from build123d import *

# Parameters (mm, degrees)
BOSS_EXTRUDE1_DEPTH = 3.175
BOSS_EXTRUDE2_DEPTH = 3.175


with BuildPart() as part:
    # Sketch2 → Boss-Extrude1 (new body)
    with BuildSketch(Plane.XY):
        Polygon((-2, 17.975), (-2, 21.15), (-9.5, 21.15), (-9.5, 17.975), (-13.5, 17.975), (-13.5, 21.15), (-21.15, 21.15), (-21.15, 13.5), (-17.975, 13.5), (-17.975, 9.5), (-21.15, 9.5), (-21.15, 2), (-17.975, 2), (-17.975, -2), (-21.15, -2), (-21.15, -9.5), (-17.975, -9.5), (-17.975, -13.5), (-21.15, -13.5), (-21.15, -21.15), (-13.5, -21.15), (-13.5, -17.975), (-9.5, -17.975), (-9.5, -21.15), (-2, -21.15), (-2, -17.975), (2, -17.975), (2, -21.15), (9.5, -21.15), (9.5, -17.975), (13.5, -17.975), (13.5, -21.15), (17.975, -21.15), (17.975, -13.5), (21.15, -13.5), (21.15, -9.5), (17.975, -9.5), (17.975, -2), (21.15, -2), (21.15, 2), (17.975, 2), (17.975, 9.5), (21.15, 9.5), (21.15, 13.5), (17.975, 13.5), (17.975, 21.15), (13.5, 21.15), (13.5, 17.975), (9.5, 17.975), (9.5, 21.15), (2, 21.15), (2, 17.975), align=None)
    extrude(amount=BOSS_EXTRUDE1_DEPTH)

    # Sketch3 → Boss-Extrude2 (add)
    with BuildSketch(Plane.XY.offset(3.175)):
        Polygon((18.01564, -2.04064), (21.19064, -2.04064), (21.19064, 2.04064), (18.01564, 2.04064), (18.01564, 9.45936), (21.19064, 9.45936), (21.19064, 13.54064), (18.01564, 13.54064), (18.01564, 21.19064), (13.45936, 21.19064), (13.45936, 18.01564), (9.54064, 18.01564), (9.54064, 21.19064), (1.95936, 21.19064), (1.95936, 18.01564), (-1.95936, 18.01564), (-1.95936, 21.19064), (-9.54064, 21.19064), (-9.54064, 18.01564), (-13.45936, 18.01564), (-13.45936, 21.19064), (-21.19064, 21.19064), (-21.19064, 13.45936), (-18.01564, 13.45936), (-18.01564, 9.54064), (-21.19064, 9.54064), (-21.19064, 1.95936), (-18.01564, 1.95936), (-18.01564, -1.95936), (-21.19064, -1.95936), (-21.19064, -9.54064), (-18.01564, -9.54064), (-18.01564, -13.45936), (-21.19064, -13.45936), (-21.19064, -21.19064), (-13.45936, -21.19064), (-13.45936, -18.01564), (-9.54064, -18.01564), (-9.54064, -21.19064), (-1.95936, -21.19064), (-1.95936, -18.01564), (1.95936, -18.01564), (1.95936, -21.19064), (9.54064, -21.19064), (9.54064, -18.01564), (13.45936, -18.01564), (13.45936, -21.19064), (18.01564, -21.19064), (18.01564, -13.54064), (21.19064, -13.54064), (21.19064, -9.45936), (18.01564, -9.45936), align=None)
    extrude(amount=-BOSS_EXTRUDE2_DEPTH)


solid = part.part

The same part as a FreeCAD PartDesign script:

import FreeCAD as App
import Part
import Sketcher
from FreeCAD import Vector
Q = App.Units.Quantity

doc = App.newDocument("Part")
body = doc.addObject("PartDesign::Body", "Body")

sketch1 = body.newObject("Sketcher::SketchObject", "Sketch")
sketch1.AttachmentSupport = (doc.getObject("XY_Plane"), [""])
sketch1.MapMode = "FlatFace"
sketch1.addGeometry([
    Part.LineSegment(Vector(-2, 18, 0), Vector(-2, 21.1, 0)),
    Part.LineSegment(Vector(-2, 21.1, 0), Vector(-9.5, 21.1, 0)),
    Part.LineSegment(Vector(-9.5, 21.1, 0), Vector(-9.5, 18, 0)),
    Part.LineSegment(Vector(-9.5, 18, 0), Vector(-13.5, 18, 0)),
    Part.LineSegment(Vector(-13.5, 18, 0), Vector(-13.5, 21.1, 0)),
    Part.LineSegment(Vector(-13.5, 21.1, 0), Vector(-21.1, 21.1, 0)),
    Part.LineSegment(Vector(-21.1, 21.1, 0), Vector(-21.1, 13.5, 0)),
    Part.LineSegment(Vector(-21.1, 13.5, 0), Vector(-18, 13.5, 0)),
    Part.LineSegment(Vector(-18, 13.5, 0), Vector(-18, 9.5, 0)),
    Part.LineSegment(Vector(-18, 9.5, 0), Vector(-21.1, 9.5, 0)),
    Part.LineSegment(Vector(-21.1, 9.5, 0), Vector(-21.1, 2, 0)),
    Part.LineSegment(Vector(-21.1, 2, 0), Vector(-18, 2, 0)),
    Part.LineSegment(Vector(-18, 2, 0), Vector(-18, -2, 0)),
    Part.LineSegment(Vector(-18, -2, 0), Vector(-21.1, -2, 0)),
    Part.LineSegment(Vector(-21.1, -2, 0), Vector(-21.1, -9.5, 0)),
    Part.LineSegment(Vector(-21.1, -9.5, 0), Vector(-18, -9.5, 0)),
    Part.LineSegment(Vector(-18, -9.5, 0), Vector(-18, -13.5, 0)),
    Part.LineSegment(Vector(-18, -13.5, 0), Vector(-21.1, -13.5, 0)),
    Part.LineSegment(Vector(-21.1, -13.5, 0), Vector(-21.1, -21.1, 0)),
    Part.LineSegment(Vector(-21.1, -21.1, 0), Vector(-13.5, -21.1, 0)),
    Part.LineSegment(Vector(-13.5, -21.1, 0), Vector(-13.5, -18, 0)),
    Part.LineSegment(Vector(-13.5, -18, 0), Vector(-9.5, -18, 0)),
    Part.LineSegment(Vector(-9.5, -18, 0), Vector(-9.5, -21.1, 0)),
    Part.LineSegment(Vector(-9.5, -21.1, 0), Vector(-2, -21.1, 0)),
    Part.LineSegment(Vector(-2, -21.1, 0), Vector(-2, -18, 0)),
    Part.LineSegment(Vector(-2, -18, 0), Vector(2, -18, 0)),
    Part.LineSegment(Vector(2, -18, 0), Vector(2, -21.1, 0)),
    Part.LineSegment(Vector(2, -21.1, 0), Vector(9.5, -21.1, 0)),
    Part.LineSegment(Vector(9.5, -21.1, 0), Vector(9.5, -18, 0)),
    Part.LineSegment(Vector(9.5, -18, 0), Vector(13.5, -18, 0)),
    Part.LineSegment(Vector(13.5, -18, 0), Vector(13.5, -21.1, 0)),
    Part.LineSegment(Vector(13.5, -21.1, 0), Vector(18, -21.1, 0)),
    Part.LineSegment(Vector(18, -21.1, 0), Vector(18, -13.5, 0)),
    Part.LineSegment(Vector(18, -13.5, 0), Vector(21.1, -13.5, 0)),
    Part.LineSegment(Vector(21.1, -13.5, 0), Vector(21.1, -9.5, 0)),
    Part.LineSegment(Vector(21.1, -9.5, 0), Vector(18, -9.5, 0)),
    Part.LineSegment(Vector(18, -9.5, 0), Vector(18, -2, 0)),
    Part.LineSegment(Vector(18, -2, 0), Vector(21.1, -2, 0)),
    Part.LineSegment(Vector(21.1, -2, 0), Vector(21.1, 2, 0)),
    Part.LineSegment(Vector(21.1, 2, 0), Vector(18, 2, 0)),
    Part.LineSegment(Vector(18, 2, 0), Vector(18, 9.5, 0)),
    Part.LineSegment(Vector(18, 9.5, 0), Vector(21.1, 9.5, 0)),
    Part.LineSegment(Vector(21.1, 9.5, 0), Vector(21.1, 13.5, 0)),
    Part.LineSegment(Vector(21.1, 13.5, 0), Vector(18, 13.5, 0)),
    Part.LineSegment(Vector(18, 13.5, 0), Vector(18, 21.1, 0)),
    Part.LineSegment(Vector(18, 21.1, 0), Vector(13.5, 21.1, 0)),
    Part.LineSegment(Vector(13.5, 21.1, 0), Vector(13.5, 18, 0)),
    Part.LineSegment(Vector(13.5, 18, 0), Vector(9.5, 18, 0)),
    Part.LineSegment(Vector(9.5, 18, 0), Vector(9.5, 21.1, 0)),
    Part.LineSegment(Vector(9.5, 21.1, 0), Vector(2, 21.1, 0)),
    Part.LineSegment(Vector(2, 21.1, 0), Vector(2, 18, 0)),
    Part.LineSegment(Vector(2, 18, 0), Vector(-2, 18, 0)),
], False)
sketch1.addConstraint([
    Sketcher.Constraint("Coincident", 0, 2, 1, 1),
    Sketcher.Constraint("Coincident", 1, 2, 2, 1),
    Sketcher.Constraint("Coincident", 2, 2, 3, 1),
    Sketcher.Constraint("Coincident", 3, 2, 4, 1),
    Sketcher.Constraint("Coincident", 4, 2, 5, 1),
    Sketcher.Constraint("Coincident", 5, 2, 6, 1),
    Sketcher.Constraint("Coincident", 6, 2, 7, 1),
    Sketcher.Constraint("Coincident", 7, 2, 8, 1),
    Sketcher.Constraint("Coincident", 8, 2, 9, 1),
    Sketcher.Constraint("Coincident", 9, 2, 10, 1),
    Sketcher.Constraint("Coincident", 10, 2, 11, 1),
    Sketcher.Constraint("Coincident", 11, 2, 12, 1),
    Sketcher.Constraint("Coincident", 12, 2, 13, 1),
    Sketcher.Constraint("Coincident", 13, 2, 14, 1),
    Sketcher.Constraint("Coincident", 14, 2, 15, 1),
    Sketcher.Constraint("Coincident", 15, 2, 16, 1),
    Sketcher.Constraint("Coincident", 16, 2, 17, 1),
    Sketcher.Constraint("Coincident", 17, 2, 18, 1),
    Sketcher.Constraint("Coincident", 18, 2, 19, 1),
    Sketcher.Constraint("Coincident", 19, 2, 20, 1),
    Sketcher.Constraint("Coincident", 20, 2, 21, 1),
    Sketcher.Constraint("Coincident", 21, 2, 22, 1),
    Sketcher.Constraint("Coincident", 22, 2, 23, 1),
    Sketcher.Constraint("Coincident", 23, 2, 24, 1),
    Sketcher.Constraint("Coincident", 24, 2, 25, 1),
    Sketcher.Constraint("Coincident", 25, 2, 26, 1),
    Sketcher.Constraint("Coincident", 26, 2, 27, 1),
    Sketcher.Constraint("Coincident", 27, 2, 28, 1),
    Sketcher.Constraint("Coincident", 28, 2, 29, 1),
    Sketcher.Constraint("Coincident", 29, 2, 30, 1),
    Sketcher.Constraint("Coincident", 30, 2, 31, 1),
    Sketcher.Constraint("Coincident", 31, 2, 32, 1),
    Sketcher.Constraint("Coincident", 32, 2, 33, 1),
    Sketcher.Constraint("Coincident", 33, 2, 34, 1),
    Sketcher.Constraint("Coincident", 34, 2, 35, 1),
    Sketcher.Constraint("Coincident", 35, 2, 36, 1),
    Sketcher.Constraint("Coincident", 36, 2, 37, 1),
    Sketcher.Constraint("Coincident", 37, 2, 38, 1),
    Sketcher.Constraint("Coincident", 38, 2, 39, 1),
    Sketcher.Constraint("Coincident", 39, 2, 40, 1),
    Sketcher.Constraint("Coincident", 40, 2, 41, 1),
    Sketcher.Constraint("Coincident", 41, 2, 42, 1),
    Sketcher.Constraint("Coincident", 42, 2, 43, 1),
    Sketcher.Constraint("Coincident", 43, 2, 44, 1),
    Sketcher.Constraint("Coincident", 44, 2, 45, 1),
    Sketcher.Constraint("Coincident", 45, 2, 46, 1),
    Sketcher.Constraint("Coincident", 46, 2, 47, 1),
    Sketcher.Constraint("Coincident", 47, 2, 48, 1),
    Sketcher.Constraint("Coincident", 48, 2, 49, 1),
    Sketcher.Constraint("Coincident", 49, 2, 50, 1),
    Sketcher.Constraint("Coincident", 50, 2, 51, 1),
    Sketcher.Constraint("Coincident", 51, 2, 0, 1),
    Sketcher.Constraint("Vertical", 0),
    Sketcher.Constraint("Horizontal", 1),
    Sketcher.Constraint("Vertical", 2),
    Sketcher.Constraint("Horizontal", 3),
    Sketcher.Constraint("Vertical", 4),
    Sketcher.Constraint("Horizontal", 5),
    Sketcher.Constraint("Vertical", 6),
    Sketcher.Constraint("Horizontal", 7),
    Sketcher.Constraint("Vertical", 8),
    Sketcher.Constraint("Horizontal", 9),
    Sketcher.Constraint("Vertical", 10),
    Sketcher.Constraint("Horizontal", 11),
    Sketcher.Constraint("Vertical", 12),
    Sketcher.Constraint("Horizontal", 13),
    Sketcher.Constraint("Vertical", 14),
    Sketcher.Constraint("Horizontal", 15),
    Sketcher.Constraint("Vertical", 16),
    Sketcher.Constraint("Horizontal", 17),
    Sketcher.Constraint("Vertical", 18),
    Sketcher.Constraint("Horizontal", 19),
    Sketcher.Constraint("Vertical", 20),
    Sketcher.Constraint("Horizontal", 21),
    Sketcher.Constraint("Vertical", 22),
    Sketcher.Constraint("Horizontal", 23),
    Sketcher.Constraint("Vertical", 24),
    Sketcher.Constraint("Horizontal", 25),
    Sketcher.Constraint("Vertical", 26),
    Sketcher.Constraint("Horizontal", 27),
    Sketcher.Constraint("Vertical", 28),
    Sketcher.Constraint("Horizontal", 29),
    Sketcher.Constraint("Vertical", 30),
    Sketcher.Constraint("Horizontal", 31),
    Sketcher.Constraint("Vertical", 32),
    Sketcher.Constraint("Horizontal", 33),
    Sketcher.Constraint("Vertical", 34),
    Sketcher.Constraint("Horizontal", 35),
    Sketcher.Constraint("Vertical", 36),
    Sketcher.Constraint("Horizontal", 37),
    Sketcher.Constraint("Vertical", 38),
    Sketcher.Constraint("Horizontal", 39),
    Sketcher.Constraint("Vertical", 40),
    Sketcher.Constraint("Horizontal", 41),
    Sketcher.Constraint("Vertical", 42),
    Sketcher.Constraint("Horizontal", 43),
    Sketcher.Constraint("Vertical", 44),
    Sketcher.Constraint("Horizontal", 45),
    Sketcher.Constraint("Vertical", 46),
    Sketcher.Constraint("Horizontal", 47),
    Sketcher.Constraint("Vertical", 48),
    Sketcher.Constraint("Horizontal", 49),
    Sketcher.Constraint("Vertical", 50),
    Sketcher.Constraint("Horizontal", 51),
    Sketcher.Constraint("Symmetric", 0, 2, 26, 2, -1, 1),
    Sketcher.Constraint("Symmetric", 2, 2, 28, 2, -1, 1),
    Sketcher.Constraint("Symmetric", 4, 2, 30, 2, -1, 1),
    Sketcher.Constraint("Symmetric", 7, 2, 32, 2, -1, 1),
    Sketcher.Constraint("Symmetric", 9, 2, 34, 2, -1, 1),
    Sketcher.Constraint("Symmetric", 11, 2, 36, 2, -1, 1),
    Sketcher.Constraint("Symmetric", 13, 2, 38, 2, -1, 1),
    Sketcher.Constraint("Symmetric", 15, 2, 40, 2, -1, 1),
    Sketcher.Constraint("Symmetric", 17, 2, 42, 2, -1, 1),
    Sketcher.Constraint("Symmetric", 19, 2, 45, 2, -1, 1),
    Sketcher.Constraint("Symmetric", 21, 2, 47, 2, -1, 1),
    Sketcher.Constraint("Symmetric", 23, 2, 49, 2, -1, 1),
    Sketcher.Constraint("Symmetric", 23, 2, 26, 2, -2),
    Sketcher.Constraint("Symmetric", 21, 2, 28, 2, -2),
    Sketcher.Constraint("Symmetric", 19, 2, 30, 2, -2),
    Sketcher.Constraint("Symmetric", 16, 2, 32, 2, -2),
    Sketcher.Constraint("Symmetric", 14, 2, 34, 2, -2),
    Sketcher.Constraint("Symmetric", 11, 2, 39, 2, -2),
    Sketcher.Constraint("Horizontal", 1, 2, 4, 2),
    Sketcher.Constraint("Horizontal", 21, 2, 24, 2),
    Sketcher.Constraint("Horizontal", 47, 2, 50, 2),
    Sketcher.Constraint("Vertical", 6, 2, 9, 2),
    Sketcher.Constraint("Vertical", 14, 2, 17, 2),
    Sketcher.Constraint("Vertical", 40, 2, 43, 2),
    Sketcher.Constraint("Equal", 21, 25),
    Sketcher.Constraint("Equal", 43, 0),
    Sketcher.Constraint("Equal", 19, 6),
    Sketcher.Constraint("Equal", 51, 8),
    Sketcher.Constraint("Equal", 49, 10),
    Sketcher.Constraint("Equal", 8, 12),
    Sketcher.Constraint("DistanceX", 3, 2, 3, 1, Q("4 mm")),
    Sketcher.Constraint("DistanceX", 1, 2, 1, 1, Q("7.5 mm")),
    Sketcher.Constraint("DistanceX", 5, 2, 5, 1, Q("7.65 mm")),
    Sketcher.Constraint("DistanceX", 7, 1, 7, 2, Q("3.175 mm")),
])
pad1 = body.newObject("PartDesign::Pad", "Pad")
pad1.Profile = sketch1
pad1.Length = 3.175

sketch2 = body.newObject("Sketcher::SketchObject", "Sketch001")
sketch2.AttachmentSupport = (doc.getObject("XY_Plane"), [""])
sketch2.MapMode = "FlatFace"
sketch2.AttachmentOffset = App.Placement(Vector(0, 0, 3.175), App.Rotation())
sketch2.addGeometry([
    Part.LineSegment(Vector(18, -2, 0), Vector(21.2, -2, 0)),
    Part.LineSegment(Vector(21.2, -2, 0), Vector(21.2, 2, 0)),
    Part.LineSegment(Vector(21.2, 2, 0), Vector(18, 2, 0)),
    Part.LineSegment(Vector(18, 2, 0), Vector(18, 9.5, 0)),
    Part.LineSegment(Vector(18, 9.5, 0), Vector(21.2, 9.5, 0)),
    Part.LineSegment(Vector(21.2, 9.5, 0), Vector(21.2, 13.5, 0)),
    Part.LineSegment(Vector(21.2, 13.5, 0), Vector(18, 13.5, 0)),
    Part.LineSegment(Vector(18, 13.5, 0), Vector(18, 21.2, 0)),
    Part.LineSegment(Vector(18, 21.2, 0), Vector(13.5, 21.2, 0)),
    Part.LineSegment(Vector(13.5, 21.2, 0), Vector(13.5, 18, 0)),
    Part.LineSegment(Vector(13.5, 18, 0), Vector(9.5, 18, 0)),
    Part.LineSegment(Vector(9.5, 18, 0), Vector(9.5, 21.2, 0)),
    Part.LineSegment(Vector(9.5, 21.2, 0), Vector(2, 21.2, 0)),
    Part.LineSegment(Vector(2, 21.2, 0), Vector(2, 18, 0)),
    Part.LineSegment(Vector(2, 18, 0), Vector(-2, 18, 0)),
    Part.LineSegment(Vector(-2, 18, 0), Vector(-2, 21.2, 0)),
    Part.LineSegment(Vector(-2, 21.2, 0), Vector(-9.5, 21.2, 0)),
    Part.LineSegment(Vector(-9.5, 21.2, 0), Vector(-9.5, 18, 0)),
    Part.LineSegment(Vector(-9.5, 18, 0), Vector(-13.5, 18, 0)),
    Part.LineSegment(Vector(-13.5, 18, 0), Vector(-13.5, 21.2, 0)),
    Part.LineSegment(Vector(-13.5, 21.2, 0), Vector(-21.2, 21.2, 0)),
    Part.LineSegment(Vector(-21.2, 21.2, 0), Vector(-21.2, 13.5, 0)),
    Part.LineSegment(Vector(-21.2, 13.5, 0), Vector(-18, 13.5, 0)),
    Part.LineSegment(Vector(-18, 13.5, 0), Vector(-18, 9.5, 0)),
    Part.LineSegment(Vector(-18, 9.5, 0), Vector(-21.2, 9.5, 0)),
    Part.LineSegment(Vector(-21.2, 9.5, 0), Vector(-21.2, 2, 0)),
    Part.LineSegment(Vector(-21.2, 2, 0), Vector(-18, 2, 0)),
    Part.LineSegment(Vector(-18, 2, 0), Vector(-18, -2, 0)),
    Part.LineSegment(Vector(-18, -2, 0), Vector(-21.2, -2, 0)),
    Part.LineSegment(Vector(-21.2, -2, 0), Vector(-21.2, -9.5, 0)),
    Part.LineSegment(Vector(-21.2, -9.5, 0), Vector(-18, -9.5, 0)),
    Part.LineSegment(Vector(-18, -9.5, 0), Vector(-18, -13.5, 0)),
    Part.LineSegment(Vector(-18, -13.5, 0), Vector(-21.2, -13.5, 0)),
    Part.LineSegment(Vector(-21.2, -13.5, 0), Vector(-21.2, -21.2, 0)),
    Part.LineSegment(Vector(-21.2, -21.2, 0), Vector(-13.5, -21.2, 0)),
    Part.LineSegment(Vector(-13.5, -21.2, 0), Vector(-13.5, -18, 0)),
    Part.LineSegment(Vector(-13.5, -18, 0), Vector(-9.5, -18, 0)),
    Part.LineSegment(Vector(-9.5, -18, 0), Vector(-9.5, -21.2, 0)),
    Part.LineSegment(Vector(-9.5, -21.2, 0), Vector(-2, -21.2, 0)),
    Part.LineSegment(Vector(-2, -21.2, 0), Vector(-2, -18, 0)),
    Part.LineSegment(Vector(-2, -18, 0), Vector(2, -18, 0)),
    Part.LineSegment(Vector(2, -18, 0), Vector(2, -21.2, 0)),
    Part.LineSegment(Vector(2, -21.2, 0), Vector(9.5, -21.2, 0)),
    Part.LineSegment(Vector(9.5, -21.2, 0), Vector(9.5, -18, 0)),
    Part.LineSegment(Vector(9.5, -18, 0), Vector(13.5, -18, 0)),
    Part.LineSegment(Vector(13.5, -18, 0), Vector(13.5, -21.2, 0)),
    Part.LineSegment(Vector(13.5, -21.2, 0), Vector(18, -21.2, 0)),
    Part.LineSegment(Vector(18, -21.2, 0), Vector(18, -13.5, 0)),
    Part.LineSegment(Vector(18, -13.5, 0), Vector(21.2, -13.5, 0)),
    Part.LineSegment(Vector(21.2, -13.5, 0), Vector(21.2, -9.5, 0)),
    Part.LineSegment(Vector(21.2, -9.5, 0), Vector(18, -9.5, 0)),
    Part.LineSegment(Vector(18, -9.5, 0), Vector(18, -2, 0)),
], False)
sketch2.addConstraint([
    Sketcher.Constraint("Coincident", 0, 2, 1, 1),
    Sketcher.Constraint("Coincident", 1, 2, 2, 1),
    Sketcher.Constraint("Coincident", 2, 2, 3, 1),
    Sketcher.Constraint("Coincident", 3, 2, 4, 1),
    Sketcher.Constraint("Coincident", 4, 2, 5, 1),
    Sketcher.Constraint("Coincident", 5, 2, 6, 1),
    Sketcher.Constraint("Coincident", 6, 2, 7, 1),
    Sketcher.Constraint("Coincident", 7, 2, 8, 1),
    Sketcher.Constraint("Coincident", 8, 2, 9, 1),
    Sketcher.Constraint("Coincident", 9, 2, 10, 1),
    Sketcher.Constraint("Coincident", 10, 2, 11, 1),
    Sketcher.Constraint("Coincident", 11, 2, 12, 1),
    Sketcher.Constraint("Coincident", 12, 2, 13, 1),
    Sketcher.Constraint("Coincident", 13, 2, 14, 1),
    Sketcher.Constraint("Coincident", 14, 2, 15, 1),
    Sketcher.Constraint("Coincident", 15, 2, 16, 1),
    Sketcher.Constraint("Coincident", 16, 2, 17, 1),
    Sketcher.Constraint("Coincident", 17, 2, 18, 1),
    Sketcher.Constraint("Coincident", 18, 2, 19, 1),
    Sketcher.Constraint("Coincident", 19, 2, 20, 1),
    Sketcher.Constraint("Coincident", 20, 2, 21, 1),
    Sketcher.Constraint("Coincident", 21, 2, 22, 1),
    Sketcher.Constraint("Coincident", 22, 2, 23, 1),
    Sketcher.Constraint("Coincident", 23, 2, 24, 1),
    Sketcher.Constraint("Coincident", 24, 2, 25, 1),
    Sketcher.Constraint("Coincident", 25, 2, 26, 1),
    Sketcher.Constraint("Coincident", 26, 2, 27, 1),
    Sketcher.Constraint("Coincident", 27, 2, 28, 1),
    Sketcher.Constraint("Coincident", 28, 2, 29, 1),
    Sketcher.Constraint("Coincident", 29, 2, 30, 1),
    Sketcher.Constraint("Coincident", 30, 2, 31, 1),
    Sketcher.Constraint("Coincident", 31, 2, 32, 1),
    Sketcher.Constraint("Coincident", 32, 2, 33, 1),
    Sketcher.Constraint("Coincident", 33, 2, 34, 1),
    Sketcher.Constraint("Coincident", 34, 2, 35, 1),
    Sketcher.Constraint("Coincident", 35, 2, 36, 1),
    Sketcher.Constraint("Coincident", 36, 2, 37, 1),
    Sketcher.Constraint("Coincident", 37, 2, 38, 1),
    Sketcher.Constraint("Coincident", 38, 2, 39, 1),
    Sketcher.Constraint("Coincident", 39, 2, 40, 1),
    Sketcher.Constraint("Coincident", 40, 2, 41, 1),
    Sketcher.Constraint("Coincident", 41, 2, 42, 1),
    Sketcher.Constraint("Coincident", 42, 2, 43, 1),
    Sketcher.Constraint("Coincident", 43, 2, 44, 1),
    Sketcher.Constraint("Coincident", 44, 2, 45, 1),
    Sketcher.Constraint("Coincident", 45, 2, 46, 1),
    Sketcher.Constraint("Coincident", 46, 2, 47, 1),
    Sketcher.Constraint("Coincident", 47, 2, 48, 1),
    Sketcher.Constraint("Coincident", 48, 2, 49, 1),
    Sketcher.Constraint("Coincident", 49, 2, 50, 1),
    Sketcher.Constraint("Coincident", 50, 2, 51, 1),
    Sketcher.Constraint("Coincident", 51, 2, 0, 1),
    Sketcher.Constraint("Horizontal", 0),
    Sketcher.Constraint("Vertical", 1),
    Sketcher.Constraint("Horizontal", 2),
    Sketcher.Constraint("Vertical", 3),
    Sketcher.Constraint("Horizontal", 4),
    Sketcher.Constraint("Vertical", 5),
    Sketcher.Constraint("Horizontal", 6),
    Sketcher.Constraint("Vertical", 7),
    Sketcher.Constraint("Horizontal", 8),
    Sketcher.Constraint("Vertical", 9),
    Sketcher.Constraint("Horizontal", 10),
    Sketcher.Constraint("Vertical", 11),
    Sketcher.Constraint("Horizontal", 12),
    Sketcher.Constraint("Vertical", 13),
    Sketcher.Constraint("Horizontal", 14),
    Sketcher.Constraint("Vertical", 15),
    Sketcher.Constraint("Horizontal", 16),
    Sketcher.Constraint("Vertical", 17),
    Sketcher.Constraint("Horizontal", 18),
    Sketcher.Constraint("Vertical", 19),
    Sketcher.Constraint("Horizontal", 20),
    Sketcher.Constraint("Vertical", 21),
    Sketcher.Constraint("Horizontal", 22),
    Sketcher.Constraint("Vertical", 23),
    Sketcher.Constraint("Horizontal", 24),
    Sketcher.Constraint("Vertical", 25),
    Sketcher.Constraint("Horizontal", 26),
    Sketcher.Constraint("Vertical", 27),
    Sketcher.Constraint("Horizontal", 28),
    Sketcher.Constraint("Vertical", 29),
    Sketcher.Constraint("Horizontal", 30),
    Sketcher.Constraint("Vertical", 31),
    Sketcher.Constraint("Horizontal", 32),
    Sketcher.Constraint("Vertical", 33),
    Sketcher.Constraint("Horizontal", 34),
    Sketcher.Constraint("Vertical", 35),
    Sketcher.Constraint("Horizontal", 36),
    Sketcher.Constraint("Vertical", 37),
    Sketcher.Constraint("Horizontal", 38),
    Sketcher.Constraint("Vertical", 39),
    Sketcher.Constraint("Horizontal", 40),
    Sketcher.Constraint("Vertical", 41),
    Sketcher.Constraint("Horizontal", 42),
    Sketcher.Constraint("Vertical", 43),
    Sketcher.Constraint("Horizontal", 44),
    Sketcher.Constraint("Vertical", 45),
    Sketcher.Constraint("Horizontal", 46),
    Sketcher.Constraint("Vertical", 47),
    Sketcher.Constraint("Horizontal", 48),
    Sketcher.Constraint("Vertical", 49),
    Sketcher.Constraint("Horizontal", 50),
    Sketcher.Constraint("Vertical", 51),
    Sketcher.Constraint("Symmetric", 8, 2, 34, 2, -1, 1),
    Sketcher.Constraint("Symmetric", 10, 2, 36, 2, -1, 1),
    Sketcher.Constraint("Symmetric", 12, 2, 38, 2, -1, 1),
    Sketcher.Constraint("Symmetric", 14, 2, 40, 2, -1, 1),
    Sketcher.Constraint("Symmetric", 16, 2, 42, 2, -1, 1),
    Sketcher.Constraint("Symmetric", 18, 2, 44, 2, -1, 1),
    Sketcher.Constraint("Symmetric", 12, 2, 15, 2, -2),
    Sketcher.Constraint("Symmetric", 10, 2, 17, 2, -2),
    Sketcher.Constraint("Symmetric", 8, 2, 19, 2, -2),
    Sketcher.Constraint("Symmetric", 25, 2, 28, 2, -1),
    Sketcher.Constraint("Symmetric", 23, 2, 30, 2, -1),
    Sketcher.Constraint("Symmetric", 21, 2, 32, 2, -1),
    Sketcher.Constraint("Symmetric", 7, 2, 46, 2, -1),
    Sketcher.Constraint("Symmetric", 5, 2, 48, 2, -1),
    Sketcher.Constraint("Symmetric", 3, 2, 50, 2, -1),
    Sketcher.Constraint("Horizontal", 8, 2, 11, 2),
    Sketcher.Constraint("Horizontal", 10, 2, 13, 2),
    Sketcher.Constraint("Vertical", 1, 2, 4, 2),
    Sketcher.Constraint("Vertical", 3, 2, 6, 2),
    Sketcher.Constraint("Vertical", 21, 2, 24, 2),
    Sketcher.Constraint("Vertical", 23, 2, 26, 2),
    Sketcher.Constraint("Equal", 10, 14),
    Sketcher.Constraint("Equal", 6, 22),
    Sketcher.Constraint("Equal", 1, 5),
    Sketcher.Constraint("Equal", 50, 9),
    Sketcher.Constraint("Equal", 34, 21),
    Sketcher.Constraint("Equal", 44, 23),
    Sketcher.Constraint("Equal", 42, 25),
    Sketcher.Constraint("Equal", 23, 27),
    Sketcher.Constraint("Equal", 3, 51),
    Sketcher.Constraint("DistanceY", 7, 1, 7, 2, Q("7.65 mm")),
    Sketcher.Constraint("DistanceY", 0, 2, 3, 2, Q("11.5 mm")),
    Sketcher.Constraint("DistanceX", 12, 2, 8, 2, Q("11.5 mm")),
    Sketcher.Constraint("DistanceX", 0, 1, 0, 2, Q("3.175 mm")),
    Sketcher.Constraint("DistanceX", 20, 2, 16, 2, Q("11.65 mm")),
    Sketcher.Constraint("DistanceX", 10, 2, 7, 2, Q("8.475 mm")),
    Sketcher.Constraint("DistanceX", 8, 2, 8, 1, Q("4.55628 mm")),
])
pad2 = body.newObject("PartDesign::Pad", "Pad001")
pad2.Profile = sketch2
pad2.Length = 3.175
pad2.Reversed = True

doc.recompute()
